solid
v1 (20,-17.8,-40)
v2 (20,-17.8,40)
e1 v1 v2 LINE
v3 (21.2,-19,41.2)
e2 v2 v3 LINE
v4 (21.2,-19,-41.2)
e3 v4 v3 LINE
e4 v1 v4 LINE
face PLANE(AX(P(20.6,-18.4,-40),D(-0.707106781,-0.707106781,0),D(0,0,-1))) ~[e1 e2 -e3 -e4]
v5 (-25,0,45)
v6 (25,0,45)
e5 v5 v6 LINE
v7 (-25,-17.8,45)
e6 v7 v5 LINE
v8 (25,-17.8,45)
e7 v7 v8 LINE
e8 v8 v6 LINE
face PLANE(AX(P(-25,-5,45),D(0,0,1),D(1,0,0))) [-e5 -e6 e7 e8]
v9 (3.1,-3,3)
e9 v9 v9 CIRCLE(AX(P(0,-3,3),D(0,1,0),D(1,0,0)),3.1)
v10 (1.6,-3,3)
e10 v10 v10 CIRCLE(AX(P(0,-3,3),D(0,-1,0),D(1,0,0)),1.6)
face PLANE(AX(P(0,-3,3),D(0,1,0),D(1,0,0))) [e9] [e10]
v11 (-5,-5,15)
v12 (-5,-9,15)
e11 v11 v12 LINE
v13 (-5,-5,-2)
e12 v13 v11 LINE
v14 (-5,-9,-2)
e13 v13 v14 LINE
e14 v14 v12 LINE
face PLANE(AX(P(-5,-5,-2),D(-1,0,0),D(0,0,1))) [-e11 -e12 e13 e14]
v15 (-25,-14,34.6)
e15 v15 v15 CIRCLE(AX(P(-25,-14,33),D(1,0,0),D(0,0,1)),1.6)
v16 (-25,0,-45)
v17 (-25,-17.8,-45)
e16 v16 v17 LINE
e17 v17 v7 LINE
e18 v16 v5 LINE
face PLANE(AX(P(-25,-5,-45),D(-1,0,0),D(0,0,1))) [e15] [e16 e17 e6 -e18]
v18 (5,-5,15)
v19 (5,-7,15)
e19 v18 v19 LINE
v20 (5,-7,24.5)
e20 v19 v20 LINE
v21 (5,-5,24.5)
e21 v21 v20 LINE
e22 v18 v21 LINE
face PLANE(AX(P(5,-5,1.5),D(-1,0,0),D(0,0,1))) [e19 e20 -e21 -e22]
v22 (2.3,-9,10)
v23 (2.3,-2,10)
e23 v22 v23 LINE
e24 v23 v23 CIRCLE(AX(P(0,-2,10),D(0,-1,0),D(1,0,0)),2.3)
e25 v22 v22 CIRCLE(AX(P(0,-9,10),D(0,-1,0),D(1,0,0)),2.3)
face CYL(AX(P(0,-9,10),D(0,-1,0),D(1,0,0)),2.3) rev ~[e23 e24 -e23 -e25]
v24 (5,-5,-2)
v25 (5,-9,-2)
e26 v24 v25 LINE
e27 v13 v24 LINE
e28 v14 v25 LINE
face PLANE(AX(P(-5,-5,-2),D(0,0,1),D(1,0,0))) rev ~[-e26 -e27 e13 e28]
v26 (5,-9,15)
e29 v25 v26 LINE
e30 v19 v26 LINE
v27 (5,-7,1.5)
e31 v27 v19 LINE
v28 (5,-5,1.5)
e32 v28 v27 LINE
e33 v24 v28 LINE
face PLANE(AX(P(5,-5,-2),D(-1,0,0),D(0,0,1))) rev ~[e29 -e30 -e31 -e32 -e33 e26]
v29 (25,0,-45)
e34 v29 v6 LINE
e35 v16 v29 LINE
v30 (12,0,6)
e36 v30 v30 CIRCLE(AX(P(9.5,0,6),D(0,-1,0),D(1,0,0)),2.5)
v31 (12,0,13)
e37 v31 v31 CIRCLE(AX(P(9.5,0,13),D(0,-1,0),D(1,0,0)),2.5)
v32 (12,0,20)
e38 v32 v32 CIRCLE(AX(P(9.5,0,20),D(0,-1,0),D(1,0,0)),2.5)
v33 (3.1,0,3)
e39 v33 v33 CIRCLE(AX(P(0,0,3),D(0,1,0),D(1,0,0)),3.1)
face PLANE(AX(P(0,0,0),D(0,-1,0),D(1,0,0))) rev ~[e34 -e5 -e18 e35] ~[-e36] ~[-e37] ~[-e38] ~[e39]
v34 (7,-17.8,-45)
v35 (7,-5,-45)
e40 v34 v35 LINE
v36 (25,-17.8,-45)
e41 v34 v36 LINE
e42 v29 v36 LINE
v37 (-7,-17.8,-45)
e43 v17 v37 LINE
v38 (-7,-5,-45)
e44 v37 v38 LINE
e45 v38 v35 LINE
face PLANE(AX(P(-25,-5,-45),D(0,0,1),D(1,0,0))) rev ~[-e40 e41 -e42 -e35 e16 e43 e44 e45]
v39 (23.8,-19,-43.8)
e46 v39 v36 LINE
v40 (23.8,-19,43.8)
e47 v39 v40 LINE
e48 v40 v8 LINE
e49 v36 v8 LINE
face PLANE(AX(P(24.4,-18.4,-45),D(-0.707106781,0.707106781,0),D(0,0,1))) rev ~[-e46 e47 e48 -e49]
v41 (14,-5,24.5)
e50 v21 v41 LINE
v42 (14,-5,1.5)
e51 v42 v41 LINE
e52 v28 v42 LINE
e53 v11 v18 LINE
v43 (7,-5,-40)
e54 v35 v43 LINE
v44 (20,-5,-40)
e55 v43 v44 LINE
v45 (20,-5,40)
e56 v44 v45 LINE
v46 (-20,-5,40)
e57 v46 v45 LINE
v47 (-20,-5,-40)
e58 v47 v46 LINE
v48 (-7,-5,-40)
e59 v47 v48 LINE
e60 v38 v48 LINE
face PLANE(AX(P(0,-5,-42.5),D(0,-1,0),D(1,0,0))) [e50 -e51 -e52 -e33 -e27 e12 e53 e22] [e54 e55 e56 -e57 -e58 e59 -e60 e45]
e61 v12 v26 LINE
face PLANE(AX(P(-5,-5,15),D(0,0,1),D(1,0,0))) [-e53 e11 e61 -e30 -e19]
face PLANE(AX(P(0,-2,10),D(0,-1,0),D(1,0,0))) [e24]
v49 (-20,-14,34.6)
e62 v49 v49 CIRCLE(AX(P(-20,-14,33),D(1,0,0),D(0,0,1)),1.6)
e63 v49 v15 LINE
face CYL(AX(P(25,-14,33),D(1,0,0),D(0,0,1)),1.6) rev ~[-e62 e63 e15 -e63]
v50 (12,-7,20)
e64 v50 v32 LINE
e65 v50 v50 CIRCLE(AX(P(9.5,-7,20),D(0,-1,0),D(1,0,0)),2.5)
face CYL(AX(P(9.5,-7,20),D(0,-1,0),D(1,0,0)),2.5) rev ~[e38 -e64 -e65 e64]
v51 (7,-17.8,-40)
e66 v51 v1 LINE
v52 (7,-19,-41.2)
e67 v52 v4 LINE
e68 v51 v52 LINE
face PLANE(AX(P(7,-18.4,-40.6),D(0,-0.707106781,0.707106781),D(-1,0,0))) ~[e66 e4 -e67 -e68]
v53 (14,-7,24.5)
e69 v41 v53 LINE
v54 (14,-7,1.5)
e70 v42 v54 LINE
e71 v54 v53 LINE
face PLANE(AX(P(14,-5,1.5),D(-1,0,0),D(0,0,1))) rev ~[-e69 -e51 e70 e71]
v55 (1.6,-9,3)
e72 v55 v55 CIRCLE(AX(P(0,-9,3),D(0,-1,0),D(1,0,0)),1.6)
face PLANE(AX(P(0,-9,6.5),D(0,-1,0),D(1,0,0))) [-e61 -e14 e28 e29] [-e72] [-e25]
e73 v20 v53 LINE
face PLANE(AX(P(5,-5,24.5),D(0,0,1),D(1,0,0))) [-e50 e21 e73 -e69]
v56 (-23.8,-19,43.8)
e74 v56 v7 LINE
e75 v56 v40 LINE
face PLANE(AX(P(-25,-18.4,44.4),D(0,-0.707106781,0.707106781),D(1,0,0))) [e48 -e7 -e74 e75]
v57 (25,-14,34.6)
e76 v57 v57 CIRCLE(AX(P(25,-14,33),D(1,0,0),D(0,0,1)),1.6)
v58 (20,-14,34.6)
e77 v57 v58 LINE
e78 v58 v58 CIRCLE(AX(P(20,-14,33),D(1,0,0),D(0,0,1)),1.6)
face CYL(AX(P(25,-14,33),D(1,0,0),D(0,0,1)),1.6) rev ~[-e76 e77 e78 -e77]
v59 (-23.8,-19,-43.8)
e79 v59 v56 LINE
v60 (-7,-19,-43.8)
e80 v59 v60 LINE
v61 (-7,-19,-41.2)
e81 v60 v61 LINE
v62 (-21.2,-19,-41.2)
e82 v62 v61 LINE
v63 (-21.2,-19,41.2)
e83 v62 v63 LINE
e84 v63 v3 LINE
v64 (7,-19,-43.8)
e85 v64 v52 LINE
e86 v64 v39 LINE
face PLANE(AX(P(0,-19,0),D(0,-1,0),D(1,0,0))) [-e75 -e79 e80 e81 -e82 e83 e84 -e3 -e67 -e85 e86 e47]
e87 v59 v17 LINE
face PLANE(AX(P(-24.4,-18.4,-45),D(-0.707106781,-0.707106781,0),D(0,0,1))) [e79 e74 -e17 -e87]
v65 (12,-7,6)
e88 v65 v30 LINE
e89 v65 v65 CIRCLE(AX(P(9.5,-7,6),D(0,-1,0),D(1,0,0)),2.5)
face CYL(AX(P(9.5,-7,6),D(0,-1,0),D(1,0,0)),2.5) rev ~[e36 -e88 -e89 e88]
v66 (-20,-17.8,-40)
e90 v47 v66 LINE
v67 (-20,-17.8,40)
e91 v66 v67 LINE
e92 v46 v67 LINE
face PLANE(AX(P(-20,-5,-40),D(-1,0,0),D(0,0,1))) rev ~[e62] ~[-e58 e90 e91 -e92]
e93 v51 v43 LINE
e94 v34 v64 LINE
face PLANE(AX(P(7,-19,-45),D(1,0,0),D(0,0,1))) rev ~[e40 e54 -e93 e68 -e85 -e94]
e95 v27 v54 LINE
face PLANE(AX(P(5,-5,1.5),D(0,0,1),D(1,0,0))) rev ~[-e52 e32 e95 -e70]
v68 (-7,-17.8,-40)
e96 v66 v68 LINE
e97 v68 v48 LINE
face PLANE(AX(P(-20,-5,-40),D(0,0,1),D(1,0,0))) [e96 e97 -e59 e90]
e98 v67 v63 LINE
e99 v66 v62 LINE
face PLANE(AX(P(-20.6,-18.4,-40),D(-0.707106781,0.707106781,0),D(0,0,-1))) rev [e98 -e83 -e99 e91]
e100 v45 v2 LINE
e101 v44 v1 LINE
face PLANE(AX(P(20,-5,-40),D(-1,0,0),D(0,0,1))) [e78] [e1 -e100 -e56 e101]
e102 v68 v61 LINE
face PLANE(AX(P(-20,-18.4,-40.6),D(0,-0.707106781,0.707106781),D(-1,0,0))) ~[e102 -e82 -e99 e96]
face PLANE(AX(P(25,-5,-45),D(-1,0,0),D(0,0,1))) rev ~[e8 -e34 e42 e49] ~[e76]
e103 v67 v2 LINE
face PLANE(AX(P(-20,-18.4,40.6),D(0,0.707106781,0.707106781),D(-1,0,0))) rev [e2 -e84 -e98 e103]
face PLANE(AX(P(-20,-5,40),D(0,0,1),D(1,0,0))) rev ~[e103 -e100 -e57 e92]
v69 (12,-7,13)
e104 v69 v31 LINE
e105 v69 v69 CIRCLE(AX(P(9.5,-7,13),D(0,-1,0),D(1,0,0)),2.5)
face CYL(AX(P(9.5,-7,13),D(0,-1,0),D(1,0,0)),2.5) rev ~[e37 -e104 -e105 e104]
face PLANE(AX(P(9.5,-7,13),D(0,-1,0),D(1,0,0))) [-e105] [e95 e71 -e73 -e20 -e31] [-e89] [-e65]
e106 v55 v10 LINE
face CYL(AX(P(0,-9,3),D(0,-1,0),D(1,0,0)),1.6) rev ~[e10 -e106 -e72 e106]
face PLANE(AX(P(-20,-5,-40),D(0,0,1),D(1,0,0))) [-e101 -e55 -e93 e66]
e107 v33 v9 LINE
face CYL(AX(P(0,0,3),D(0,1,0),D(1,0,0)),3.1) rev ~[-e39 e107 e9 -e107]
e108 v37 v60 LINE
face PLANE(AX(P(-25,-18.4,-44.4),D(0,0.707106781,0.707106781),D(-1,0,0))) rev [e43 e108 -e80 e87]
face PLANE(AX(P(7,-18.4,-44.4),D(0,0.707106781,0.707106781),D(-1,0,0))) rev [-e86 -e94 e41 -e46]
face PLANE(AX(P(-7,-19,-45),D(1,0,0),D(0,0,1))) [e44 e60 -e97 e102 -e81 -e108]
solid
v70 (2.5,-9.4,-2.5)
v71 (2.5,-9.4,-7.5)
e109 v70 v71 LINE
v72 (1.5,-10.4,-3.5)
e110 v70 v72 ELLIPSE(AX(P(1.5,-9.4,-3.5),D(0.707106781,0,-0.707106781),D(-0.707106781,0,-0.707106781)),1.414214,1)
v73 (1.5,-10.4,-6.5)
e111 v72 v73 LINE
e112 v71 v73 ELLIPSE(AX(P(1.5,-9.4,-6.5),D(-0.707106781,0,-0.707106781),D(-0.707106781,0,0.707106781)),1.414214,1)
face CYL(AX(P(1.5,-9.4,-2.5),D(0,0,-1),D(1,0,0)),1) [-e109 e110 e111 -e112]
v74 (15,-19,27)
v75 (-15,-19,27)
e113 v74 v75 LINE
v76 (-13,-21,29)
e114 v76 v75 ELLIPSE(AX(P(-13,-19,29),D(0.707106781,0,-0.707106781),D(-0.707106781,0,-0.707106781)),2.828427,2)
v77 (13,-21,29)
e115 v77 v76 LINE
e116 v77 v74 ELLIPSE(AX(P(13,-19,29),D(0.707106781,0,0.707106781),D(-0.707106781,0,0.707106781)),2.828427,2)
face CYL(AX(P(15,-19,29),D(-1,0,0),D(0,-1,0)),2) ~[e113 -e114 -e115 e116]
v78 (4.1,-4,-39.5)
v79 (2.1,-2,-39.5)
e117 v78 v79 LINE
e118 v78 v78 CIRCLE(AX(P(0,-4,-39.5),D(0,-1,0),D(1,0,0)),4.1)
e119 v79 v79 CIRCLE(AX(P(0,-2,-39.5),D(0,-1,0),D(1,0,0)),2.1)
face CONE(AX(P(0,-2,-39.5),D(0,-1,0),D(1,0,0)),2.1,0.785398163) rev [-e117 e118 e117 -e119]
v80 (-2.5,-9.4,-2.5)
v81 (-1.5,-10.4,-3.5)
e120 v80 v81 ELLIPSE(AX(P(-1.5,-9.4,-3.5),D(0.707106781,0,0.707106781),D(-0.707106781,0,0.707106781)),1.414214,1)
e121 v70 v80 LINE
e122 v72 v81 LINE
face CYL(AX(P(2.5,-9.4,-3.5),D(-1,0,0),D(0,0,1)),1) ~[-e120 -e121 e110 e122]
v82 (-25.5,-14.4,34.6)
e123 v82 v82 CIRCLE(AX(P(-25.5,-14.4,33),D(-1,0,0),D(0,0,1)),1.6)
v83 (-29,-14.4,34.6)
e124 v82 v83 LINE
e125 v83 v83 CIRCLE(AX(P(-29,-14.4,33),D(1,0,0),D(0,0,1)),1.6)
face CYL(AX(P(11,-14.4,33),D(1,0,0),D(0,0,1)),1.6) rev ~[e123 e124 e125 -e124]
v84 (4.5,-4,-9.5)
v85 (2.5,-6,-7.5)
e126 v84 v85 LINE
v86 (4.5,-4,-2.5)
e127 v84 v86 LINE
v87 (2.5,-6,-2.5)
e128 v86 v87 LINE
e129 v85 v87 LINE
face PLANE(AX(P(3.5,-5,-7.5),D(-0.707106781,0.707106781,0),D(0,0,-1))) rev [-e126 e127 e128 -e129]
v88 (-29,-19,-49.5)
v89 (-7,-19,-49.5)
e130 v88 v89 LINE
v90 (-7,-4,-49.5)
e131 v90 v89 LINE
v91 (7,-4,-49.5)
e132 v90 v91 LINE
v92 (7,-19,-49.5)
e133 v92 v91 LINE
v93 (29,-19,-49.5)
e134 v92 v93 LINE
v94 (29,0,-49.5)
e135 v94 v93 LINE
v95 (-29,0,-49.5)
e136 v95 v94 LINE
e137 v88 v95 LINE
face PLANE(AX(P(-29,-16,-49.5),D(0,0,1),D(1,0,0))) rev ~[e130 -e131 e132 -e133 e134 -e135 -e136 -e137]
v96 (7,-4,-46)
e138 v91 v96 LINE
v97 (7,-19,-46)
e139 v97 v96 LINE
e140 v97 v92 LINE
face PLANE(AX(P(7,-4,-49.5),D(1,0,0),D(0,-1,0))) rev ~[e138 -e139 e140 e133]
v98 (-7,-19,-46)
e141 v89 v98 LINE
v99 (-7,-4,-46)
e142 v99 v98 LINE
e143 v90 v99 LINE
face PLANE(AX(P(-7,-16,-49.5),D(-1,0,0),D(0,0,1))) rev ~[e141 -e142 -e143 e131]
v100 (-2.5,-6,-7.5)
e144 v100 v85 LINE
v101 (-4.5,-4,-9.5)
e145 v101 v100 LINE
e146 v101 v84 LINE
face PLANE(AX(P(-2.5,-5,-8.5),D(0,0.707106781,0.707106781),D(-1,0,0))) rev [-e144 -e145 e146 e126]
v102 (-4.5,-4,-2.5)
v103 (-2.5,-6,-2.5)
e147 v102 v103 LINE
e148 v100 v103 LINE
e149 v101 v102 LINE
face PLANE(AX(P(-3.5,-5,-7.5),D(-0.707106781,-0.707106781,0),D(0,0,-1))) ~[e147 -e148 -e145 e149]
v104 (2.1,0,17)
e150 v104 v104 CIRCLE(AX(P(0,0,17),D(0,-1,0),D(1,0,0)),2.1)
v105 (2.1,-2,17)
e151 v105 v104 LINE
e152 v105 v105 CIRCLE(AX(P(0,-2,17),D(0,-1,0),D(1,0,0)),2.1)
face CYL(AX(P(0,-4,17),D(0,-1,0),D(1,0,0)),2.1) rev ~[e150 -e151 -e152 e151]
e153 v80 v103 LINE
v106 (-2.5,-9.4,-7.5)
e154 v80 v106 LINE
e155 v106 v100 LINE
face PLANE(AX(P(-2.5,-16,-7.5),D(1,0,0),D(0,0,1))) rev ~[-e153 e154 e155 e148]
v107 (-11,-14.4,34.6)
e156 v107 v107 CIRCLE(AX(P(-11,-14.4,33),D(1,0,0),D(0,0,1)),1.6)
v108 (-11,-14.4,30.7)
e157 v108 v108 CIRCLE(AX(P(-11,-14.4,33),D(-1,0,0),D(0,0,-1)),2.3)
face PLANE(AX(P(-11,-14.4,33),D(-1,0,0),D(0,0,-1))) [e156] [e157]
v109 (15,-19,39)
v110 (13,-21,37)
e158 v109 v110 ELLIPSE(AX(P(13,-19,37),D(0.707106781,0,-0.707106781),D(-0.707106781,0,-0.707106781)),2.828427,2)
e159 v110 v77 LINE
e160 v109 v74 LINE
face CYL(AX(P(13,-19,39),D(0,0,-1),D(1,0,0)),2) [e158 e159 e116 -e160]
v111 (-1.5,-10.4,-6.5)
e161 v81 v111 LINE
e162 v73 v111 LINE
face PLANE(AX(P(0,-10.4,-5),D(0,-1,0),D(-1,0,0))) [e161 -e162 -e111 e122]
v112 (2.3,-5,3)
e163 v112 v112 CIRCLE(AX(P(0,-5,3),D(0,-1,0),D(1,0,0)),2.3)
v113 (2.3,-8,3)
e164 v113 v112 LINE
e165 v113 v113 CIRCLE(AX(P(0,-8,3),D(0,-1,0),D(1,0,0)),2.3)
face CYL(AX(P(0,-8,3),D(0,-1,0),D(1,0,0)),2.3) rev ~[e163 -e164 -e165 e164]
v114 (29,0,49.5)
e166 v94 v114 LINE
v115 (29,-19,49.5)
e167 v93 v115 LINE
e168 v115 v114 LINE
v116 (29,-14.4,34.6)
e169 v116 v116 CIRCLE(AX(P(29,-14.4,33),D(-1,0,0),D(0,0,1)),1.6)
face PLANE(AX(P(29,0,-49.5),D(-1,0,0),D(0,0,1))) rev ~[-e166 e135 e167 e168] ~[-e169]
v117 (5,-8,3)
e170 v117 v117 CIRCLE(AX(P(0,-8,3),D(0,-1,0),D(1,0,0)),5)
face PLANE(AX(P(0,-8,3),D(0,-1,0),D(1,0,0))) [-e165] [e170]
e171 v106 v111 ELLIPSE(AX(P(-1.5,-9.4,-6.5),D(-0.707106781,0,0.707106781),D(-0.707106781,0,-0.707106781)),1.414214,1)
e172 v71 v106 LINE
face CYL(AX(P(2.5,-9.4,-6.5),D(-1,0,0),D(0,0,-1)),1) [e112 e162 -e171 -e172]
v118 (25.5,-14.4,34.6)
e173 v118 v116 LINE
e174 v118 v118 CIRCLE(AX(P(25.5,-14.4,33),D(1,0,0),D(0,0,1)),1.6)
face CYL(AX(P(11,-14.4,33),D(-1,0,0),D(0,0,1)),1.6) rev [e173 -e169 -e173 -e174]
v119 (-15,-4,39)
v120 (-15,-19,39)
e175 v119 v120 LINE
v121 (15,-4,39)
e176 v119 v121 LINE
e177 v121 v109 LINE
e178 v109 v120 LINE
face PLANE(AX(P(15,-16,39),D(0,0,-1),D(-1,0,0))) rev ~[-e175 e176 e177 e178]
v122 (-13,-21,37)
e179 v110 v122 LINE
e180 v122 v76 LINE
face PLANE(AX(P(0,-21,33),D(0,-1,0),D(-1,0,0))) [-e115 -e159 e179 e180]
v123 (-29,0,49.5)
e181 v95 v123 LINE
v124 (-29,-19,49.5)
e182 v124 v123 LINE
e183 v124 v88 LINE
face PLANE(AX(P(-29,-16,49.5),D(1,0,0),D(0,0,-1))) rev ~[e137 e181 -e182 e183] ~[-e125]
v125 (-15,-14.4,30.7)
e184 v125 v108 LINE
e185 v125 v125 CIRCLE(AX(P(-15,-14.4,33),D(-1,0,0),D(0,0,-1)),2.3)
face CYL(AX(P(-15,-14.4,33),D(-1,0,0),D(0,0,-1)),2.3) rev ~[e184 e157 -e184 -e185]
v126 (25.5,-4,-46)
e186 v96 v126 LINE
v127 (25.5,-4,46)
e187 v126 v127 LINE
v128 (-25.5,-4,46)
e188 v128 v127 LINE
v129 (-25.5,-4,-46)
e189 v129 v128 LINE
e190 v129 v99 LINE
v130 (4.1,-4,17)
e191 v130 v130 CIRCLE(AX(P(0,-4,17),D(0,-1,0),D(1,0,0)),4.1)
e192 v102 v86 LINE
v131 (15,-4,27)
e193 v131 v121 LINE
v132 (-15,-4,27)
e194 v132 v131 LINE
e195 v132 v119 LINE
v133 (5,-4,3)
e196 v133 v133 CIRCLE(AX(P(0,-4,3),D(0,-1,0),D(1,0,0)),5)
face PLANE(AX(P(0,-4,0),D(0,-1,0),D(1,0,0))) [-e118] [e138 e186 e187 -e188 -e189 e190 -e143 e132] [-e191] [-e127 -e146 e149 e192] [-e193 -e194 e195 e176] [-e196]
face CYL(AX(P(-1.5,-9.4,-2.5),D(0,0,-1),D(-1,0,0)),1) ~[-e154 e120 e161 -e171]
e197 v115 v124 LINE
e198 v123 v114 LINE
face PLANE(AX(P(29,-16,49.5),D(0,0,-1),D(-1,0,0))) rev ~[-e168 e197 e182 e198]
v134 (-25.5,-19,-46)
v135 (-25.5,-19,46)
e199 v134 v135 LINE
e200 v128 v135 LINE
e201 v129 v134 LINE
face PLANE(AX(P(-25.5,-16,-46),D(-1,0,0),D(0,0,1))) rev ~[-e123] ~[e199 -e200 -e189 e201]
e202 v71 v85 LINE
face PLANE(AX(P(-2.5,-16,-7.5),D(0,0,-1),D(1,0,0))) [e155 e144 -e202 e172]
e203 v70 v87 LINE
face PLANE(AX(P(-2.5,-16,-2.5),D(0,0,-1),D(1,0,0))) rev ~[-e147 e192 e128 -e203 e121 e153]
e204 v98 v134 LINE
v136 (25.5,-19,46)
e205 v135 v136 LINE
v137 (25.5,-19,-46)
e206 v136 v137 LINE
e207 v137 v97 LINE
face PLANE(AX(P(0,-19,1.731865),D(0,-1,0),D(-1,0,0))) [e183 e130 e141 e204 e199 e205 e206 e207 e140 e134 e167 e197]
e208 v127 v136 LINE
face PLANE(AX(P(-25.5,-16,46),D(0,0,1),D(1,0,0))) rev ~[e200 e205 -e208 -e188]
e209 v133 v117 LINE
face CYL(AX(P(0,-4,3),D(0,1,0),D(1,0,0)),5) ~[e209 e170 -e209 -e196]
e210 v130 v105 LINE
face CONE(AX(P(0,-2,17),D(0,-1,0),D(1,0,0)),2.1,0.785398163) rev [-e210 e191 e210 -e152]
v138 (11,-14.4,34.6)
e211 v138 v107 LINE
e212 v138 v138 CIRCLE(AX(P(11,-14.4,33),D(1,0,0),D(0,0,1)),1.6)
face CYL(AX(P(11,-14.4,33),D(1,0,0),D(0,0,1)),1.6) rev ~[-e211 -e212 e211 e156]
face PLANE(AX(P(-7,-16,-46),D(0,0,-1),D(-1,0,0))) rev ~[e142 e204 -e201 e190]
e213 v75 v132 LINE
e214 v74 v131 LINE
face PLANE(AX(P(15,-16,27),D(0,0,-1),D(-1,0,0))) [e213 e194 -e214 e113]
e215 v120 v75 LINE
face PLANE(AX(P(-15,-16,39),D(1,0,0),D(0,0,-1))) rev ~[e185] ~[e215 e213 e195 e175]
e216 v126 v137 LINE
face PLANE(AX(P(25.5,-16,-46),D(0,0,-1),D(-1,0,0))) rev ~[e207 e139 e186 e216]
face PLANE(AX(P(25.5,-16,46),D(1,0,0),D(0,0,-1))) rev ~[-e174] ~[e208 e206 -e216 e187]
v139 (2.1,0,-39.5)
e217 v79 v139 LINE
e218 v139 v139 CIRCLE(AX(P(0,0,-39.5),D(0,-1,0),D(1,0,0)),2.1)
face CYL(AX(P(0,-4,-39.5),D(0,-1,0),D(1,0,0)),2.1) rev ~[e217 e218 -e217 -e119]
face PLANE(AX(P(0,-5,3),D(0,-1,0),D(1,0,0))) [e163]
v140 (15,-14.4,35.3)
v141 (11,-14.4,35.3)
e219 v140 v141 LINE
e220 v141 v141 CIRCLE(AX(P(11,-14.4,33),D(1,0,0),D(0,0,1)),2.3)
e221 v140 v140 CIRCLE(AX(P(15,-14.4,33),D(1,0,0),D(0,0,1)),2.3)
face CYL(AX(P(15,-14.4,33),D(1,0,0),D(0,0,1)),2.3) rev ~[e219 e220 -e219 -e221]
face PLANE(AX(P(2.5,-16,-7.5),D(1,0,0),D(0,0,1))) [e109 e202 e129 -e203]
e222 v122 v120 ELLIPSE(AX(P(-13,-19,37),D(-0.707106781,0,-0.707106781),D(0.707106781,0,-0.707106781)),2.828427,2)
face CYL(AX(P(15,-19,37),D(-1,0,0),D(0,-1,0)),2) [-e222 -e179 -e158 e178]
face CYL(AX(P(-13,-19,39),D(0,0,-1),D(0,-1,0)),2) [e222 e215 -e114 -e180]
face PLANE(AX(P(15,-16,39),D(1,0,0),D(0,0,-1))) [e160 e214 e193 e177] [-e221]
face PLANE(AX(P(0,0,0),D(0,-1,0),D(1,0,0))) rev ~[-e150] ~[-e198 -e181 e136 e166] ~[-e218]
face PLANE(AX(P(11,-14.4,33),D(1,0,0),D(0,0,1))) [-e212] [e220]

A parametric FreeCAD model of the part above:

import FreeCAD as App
import Part
import Sketcher

V = App.Vector


def edges_at(feature, points):
    """Names of the edges that pass closest to the given points."""
    edges = feature.Shape.Edges
    near = lambda p: min(range(len(edges)), key=lambda i: edges[i].distToShape(Part.Vertex(*p))[0])
    return sorted({f"Edge{near(p) + 1}" for p in points})

doc = App.newDocument("Part")
body = doc.addObject("PartDesign::Body", "Body")

# Sketch on XZ plane
sketch1 = body.newObject("Sketcher::SketchObject", "Sketch")
sketch1.AttachmentSupport = (doc.getObject("XZ_Plane"), [""])
sketch1.MapMode = "FlatFace"
sketch1.addGeometry(Part.LineSegment(V(-29, 50, 0), V(-29, -50, 0)), False)
sketch1.addGeometry(Part.LineSegment(V(-29, -50, 0), V(29, -50, 0)), False)
sketch1.addGeometry(Part.LineSegment(V(29, -50, 0), V(29, 50, 0)), False)
sketch1.addGeometry(Part.LineSegment(V(29, 50, 0), V(-29, 50, 0)), False)
sketch1.addConstraint(Sketcher.Constraint("Coincident", 0, 2, 1, 1))
sketch1.addConstraint(Sketcher.Constraint("Coincident", 1, 2, 2, 1))
sketch1.addConstraint(Sketcher.Constraint("Coincident", 2, 2, 3, 1))
sketch1.addConstraint(Sketcher.Constraint("Coincident", 3, 2, 0, 1))
sketch1.addConstraint(Sketcher.Constraint("Vertical", 0))
sketch1.addConstraint(Sketcher.Constraint("Horizontal", 1))
sketch1.addConstraint(Sketcher.Constraint("Vertical", 2))
sketch1.addConstraint(Sketcher.Constraint("Horizontal", 3))
sketch1.addConstraint(Sketcher.Constraint("Symmetric", 0, 2, 2, 2, -1, 1))
sketch1.addConstraint(Sketcher.Constraint("DistanceX", 1, 1, 1, 2, 58.0))
sketch1.addConstraint(Sketcher.Constraint("DistanceY", 0, 2, 0, 1, 99.0))
pad1 = body.newObject("PartDesign::Pad", "Pad")
pad1.Profile = sketch1
pad1.Length = 16

# Sketch on XZ plane
sketch2 = body.newObject("Sketcher::SketchObject", "Sketch001")
sketch2.AttachmentSupport = (doc.getObject("XZ_Plane"), [""])
sketch2.MapMode = "FlatFace"
sketch2.AttachmentOffset = App.Placement(V(0, 0, 16), App.Rotation())
sketch2.addGeometry(Part.LineSegment(V(-26, 46, 0), V(-26, -46, 0)), False)
sketch2.addGeometry(Part.LineSegment(V(-26, -46, 0), V(26, -46, 0)), False)
sketch2.addGeometry(Part.LineSegment(V(26, -46, 0), V(26, 46, 0)), False)
sketch2.addGeometry(Part.LineSegment(V(26, 46, 0), V(-26, 46, 0)), False)
sketch2.addGeometry(Part.LineSegment(V(2, -8, 0), V(-2, -8, 0)), False)
sketch2.addGeometry(Part.LineSegment(V(-2, -8, 0), V(-2, -2, 0)), False)
sketch2.addGeometry(Part.LineSegment(V(-2, -2, 0), V(2, -2, 0)), False)
sketch2.addGeometry(Part.LineSegment(V(2, -2, 0), V(2, -8, 0)), False)
sketch2.addGeometry(Part.LineSegment(V(15, 27, 0), V(-15, 27, 0)), False)
sketch2.addGeometry(Part.LineSegment(V(-15, 27, 0), V(-15, 39, 0)), False)
sketch2.addGeometry(Part.LineSegment(V(-15, 39, 0), V(15, 39, 0)), False)
sketch2.addGeometry(Part.LineSegment(V(15, 39, 0), V(15, 27, 0)), False)
sketch2.addConstraint(Sketcher.Constraint("Coincident", 0, 2, 1, 1))
sketch2.addConstraint(Sketcher.Constraint("Coincident", 1, 2, 2, 1))
sketch2.addConstraint(Sketcher.Constraint("Coincident", 2, 2, 3, 1))
sketch2.addConstraint(Sketcher.Constraint("Coincident", 3, 2, 0, 1))
sketch2.addConstraint(Sketcher.Constraint("Coincident", 4, 2, 5, 1))
sketch2.addConstraint(Sketcher.Constraint("Coincident", 5, 2, 6, 1))
sketch2.addConstraint(Sketcher.Constraint("Coincident", 6, 2, 7, 1))
sketch2.addConstraint(Sketcher.Constraint("Coincident", 7, 2, 4, 1))
sketch2.addConstraint(Sketcher.Constraint("Coincident", 8, 2, 9, 1))
sketch2.addConstraint(Sketcher.Constraint("Coincident", 9, 2, 10, 1))
sketch2.addConstraint(Sketcher.Constraint("Coincident", 10, 2, 11, 1))
sketch2.addConstraint(Sketcher.Constraint("Coincident", 11, 2, 8, 1))
sketch2.addConstraint(Sketcher.Constraint("Vertical", 0))
sketch2.addConstraint(Sketcher.Constraint("Horizontal", 1))
sketch2.addConstraint(Sketcher.Constraint("Vertical", 2))
sketch2.addConstraint(Sketcher.Constraint("Horizontal", 3))
sketch2.addConstraint(Sketcher.Constraint("Horizontal", 4))
sketch2.addConstraint(Sketcher.Constraint("Vertical", 5))
sketch2.addConstraint(Sketcher.Constraint("Horizontal", 6))
sketch2.addConstraint(Sketcher.Constraint("Vertical", 7))
sketch2.addConstraint(Sketcher.Constraint("Horizontal", 8))
sketch2.addConstraint(Sketcher.Constraint("Vertical", 9))
sketch2.addConstraint(Sketcher.Constraint("Horizontal", 10))
sketch2.addConstraint(Sketcher.Constraint("Vertical", 11))
sketch2.addConstraint(Sketcher.Constraint("Symmetric", 0, 2, 2, 2, -1, 1))
sketch2.addConstraint(Sketcher.Constraint("Equal", 6, 5))
sketch2.addConstraint(Sketcher.Constraint("DistanceX", 1, 1, 1, 2, 51.0))
sketch2.addConstraint(Sketcher.Constraint("DistanceX", 4, 2, 4, 1, 5.0))
sketch2.addConstraint(Sketcher.Constraint("DistanceX", 8, 2, 8, 1, 30.0))
sketch2.addConstraint(Sketcher.Constraint("DistanceY", 0, 2, 0, 1, 92.0))
sketch2.addConstraint(Sketcher.Constraint("DistanceY", 9, 1, 9, 2, 12.0))
sketch2.addConstraint(Sketcher.Constraint("DistanceX", 8, 2, -1, 1, 15.0))
sketch2.addConstraint(Sketcher.Constraint("DistanceY", -1, 1, 8, 2, 27.0))
sketch2.addConstraint(Sketcher.Constraint("DistanceX", 0, 2, 4, 2, 23.0))
sketch2.addConstraint(Sketcher.Constraint("DistanceY", 4, 2, -1, 1, 7.5))
pocket1 = body.newObject("PartDesign::Pocket", "Pocket")
pocket1.Profile = sketch2
pocket1.Length = 12

# Sketch on XZ plane
sketch3 = body.newObject("Sketcher::SketchObject", "Sketch002")
sketch3.AttachmentSupport = (doc.getObject("XZ_Plane"), [""])
sketch3.MapMode = "FlatFace"
sketch3.AttachmentOffset = App.Placement(V(0, 0, 16), App.Rotation())
sketch3.addGeometry(Part.LineSegment(V(2, -8, 0), V(2, -2, 0)), False)
sketch3.addGeometry(Part.LineSegment(V(2, -2, 0), V(-2, -2, 0)), False)
sketch3.addGeometry(Part.LineSegment(V(-2, -2, 0), V(-2, -8, 0)), False)
sketch3.addGeometry(Part.LineSegment(V(-2, -8, 0), V(2, -8, 0)), False)
sketch3.addConstraint(Sketcher.Constraint("Coincident", 0, 2, 1, 1))
sketch3.addConstraint(Sketcher.Constraint("Coincident", 1, 2, 2, 1))
sketch3.addConstraint(Sketcher.Constraint("Coincident", 2, 2, 3, 1))
sketch3.addConstraint(Sketcher.Constraint("Coincident", 3, 2, 0, 1))
sketch3.addConstraint(Sketcher.Constraint("Vertical", 0))
sketch3.addConstraint(Sketcher.Constraint("Horizontal", 1))
sketch3.addConstraint(Sketcher.Constraint("Vertical", 2))
sketch3.addConstraint(Sketcher.Constraint("Horizontal", 3))
sketch3.addConstraint(Sketcher.Constraint("Equal", 3, 0))
sketch3.addConstraint(Sketcher.Constraint("DistanceX", 1, 2, 1, 1, 5.0))
sketch3.addConstraint(Sketcher.Constraint("DistanceX", -1, 1, 0, 2, 2.5))
sketch3.addConstraint(Sketcher.Constraint("DistanceY", 0, 2, -1, 1, 2.5))
pocket2 = body.newObject("PartDesign::Pocket", "Pocket001")
pocket2.Profile = sketch3
pocket2.Length = 5.6

# Sketch on XZ plane
sketch4 = body.newObject("Sketcher::SketchObject", "Sketch003")
sketch4.AttachmentSupport = (doc.getObject("XZ_Plane"), [""])
sketch4.MapMode = "FlatFace"
sketch4.AttachmentOffset = App.Placement(V(0, 0, 16), App.Rotation())
sketch4.addGeometry(Part.LineSegment(V(15, 27, 0), V(15, 39, 0)), False)
sketch4.addGeometry(Part.LineSegment(V(15, 39, 0), V(-15, 39, 0)), False)
sketch4.addGeometry(Part.LineSegment(V(-15, 39, 0), V(-15, 27, 0)), False)
sketch4.addGeometry(Part.LineSegment(V(-15, 27, 0), V(15, 27, 0)), False)
sketch4.addConstraint(Sketcher.Constraint("Coincident", 0, 2, 1, 1))
sketch4.addConstraint(Sketcher.Constraint("Coincident", 1, 2, 2, 1))
sketch4.addConstraint(Sketcher.Constraint("Coincident", 2, 2, 3, 1))
sketch4.addConstraint(Sketcher.Constraint("Coincident", 3, 2, 0, 1))
sketch4.addConstraint(Sketcher.Constraint("Vertical", 0))
sketch4.addConstraint(Sketcher.Constraint("Horizontal", 1))
sketch4.addConstraint(Sketcher.Constraint("Vertical", 2))
sketch4.addConstraint(Sketcher.Constraint("Horizontal", 3))
sketch4.addConstraint(Sketcher.Constraint("DistanceX", 1, 2, 1, 1, 30.0))
sketch4.addConstraint(Sketcher.Constraint("DistanceY", 0, 1, 0, 2, 12.0))
sketch4.addConstraint(Sketcher.Constraint("DistanceX", -1, 1, 0, 2, 15.0))
sketch4.addConstraint(Sketcher.Constraint("DistanceY", -1, 1, 0, 2, 39.0))
pad2 = body.newObject("PartDesign::Pad", "Pad001")
pad2.Profile = sketch4
pad2.Length = 5

# Sketch on YZ plane
sketch5 = body.newObject("Sketcher::SketchObject", "Sketch004")
sketch5.AttachmentSupport = (doc.getObject("YZ_Plane"), [""])
sketch5.MapMode = "FlatFace"
sketch5.AttachmentOffset = App.Placement(V(0, 0, 15), App.Rotation())
sketch5.addGeometry(Part.Circle(V(-14.4, 33, 0), V(0, 0, 1), 2.3), False)
sketch5.addConstraint(Sketcher.Constraint("Diameter", 0, 4.6))
sketch5.addConstraint(Sketcher.Constraint("DistanceY", -1, 1, 0, 3, 33.0))
sketch5.addConstraint(Sketcher.Constraint("DistanceX", 0, 3, -1, 1, 14.4))
pocket3 = body.newObject("PartDesign::Pocket", "Pocket002")
pocket3.Profile = sketch5
pocket3.Length = 4

# Sketch on YZ plane
sketch6 = body.newObject("Sketcher::SketchObject", "Sketch005")
sketch6.AttachmentSupport = (doc.getObject("YZ_Plane"), [""])
sketch6.MapMode = "FlatFace"
sketch6.AttachmentOffset = App.Placement(V(0, 0, -15), App.Rotation())
sketch6.addGeometry(Part.Circle(V(-14.4, 33, 0), V(0, 0, 1), 2.3), False)
sketch6.addConstraint(Sketcher.Constraint("Diameter", 0, 4.6))
sketch6.addConstraint(Sketcher.Constraint("DistanceY", -1, 1, 0, 3, 33.0))
sketch6.addConstraint(Sketcher.Constraint("DistanceX", 0, 3, -1, 1, 14.4))
pocket4 = body.newObject("PartDesign::Pocket", "Pocket003")
pocket4.Profile = sketch6
pocket4.Length = 4
pocket4.Reversed = True

# Sketch on YZ plane
sketch7 = body.newObject("Sketcher::SketchObject", "Sketch006")
sketch7.AttachmentSupport = (doc.getObject("YZ_Plane"), [""])
sketch7.MapMode = "FlatFace"
sketch7.AttachmentOffset = App.Placement(V(0, 0, 11), App.Rotation())
sketch7.addGeometry(Part.Circle(V(-14.4, 33, 0), V(0, 0, 1), 1.6), False)
sketch7.addConstraint(Sketcher.Constraint("Diameter", 0, 3.2))
sketch7.addConstraint(Sketcher.Constraint("DistanceY", -1, 1, 0, 3, 33.0))
sketch7.addConstraint(Sketcher.Constraint("DistanceX", 0, 3, -1, 1, 14.4))
pocket5 = body.newObject("PartDesign::Pocket", "Pocket004")
pocket5.Profile = sketch7
pocket5.Type = "ThroughAll"
pocket5.Midplane = True
doc.recompute()

fillet = body.newObject("PartDesign::Fillet", "Fillet")
fillet.Base = (pocket5, edges_at(pocket5, [
    (-15, -21, 33),
    (0, -21, 27),
    (15, -21, 33),
    (0, -21, 39),
]))
fillet.Radius = 2
doc.recompute()

fillet2 = body.newObject("PartDesign::Fillet", "Fillet001")
fillet2.Base = (fillet, edges_at(fillet, [
    (0, -10.4, -7.5),
    (2.5, -10.4, -5),
    (0, -10.4, -2.5),
    (-2.5, -10.4, -5),
]))
fillet2.Radius = 1

# Sketch on XY plane
sketch8 = body.newObject("Sketcher::SketchObject", "Sketch007")
sketch8.AttachmentSupport = (doc.getObject("XY_Plane"), [""])
sketch8.MapMode = "FlatFace"
sketch8.AttachmentOffset = App.Placement(V(0, 0, -49.5), App.Rotation())
sketch8.addGeometry(Part.LineSegment(V(-7, -16, 0), V(-7, -4, 0)), False)
sketch8.addGeometry(Part.LineSegment(V(-7, -4, 0), V(7, -4, 0)), False)
sketch8.addGeometry(Part.LineSegment(V(7, -4, 0), V(7, -16, 0)), False)
sketch8.addGeometry(Part.LineSegment(V(7, -16, 0), V(-7, -16, 0)), False)
sketch8.addConstraint(Sketcher.Constraint("Coincident", 0, 2, 1, 1))
sketch8.addConstraint(Sketcher.Constraint("Coincident", 1, 2, 2, 1))
sketch8.addConstraint(Sketcher.Constraint("Coincident", 2, 2, 3, 1))
sketch8.addConstraint(Sketcher.Constraint("Coincident", 3, 2, 0, 1))
sketch8.addConstraint(Sketcher.Constraint("Vertical", 0))
sketch8.addConstraint(Sketcher.Constraint("Horizontal", 1))
sketch8.addConstraint(Sketcher.Constraint("Vertical", 2))
sketch8.addConstraint(Sketcher.Constraint("Horizontal", 3))
sketch8.addConstraint(Sketcher.Constraint("DistanceX", 1, 1, 1, 2, 14.0))
sketch8.addConstraint(Sketcher.Constraint("DistanceY", 0, 1, 0, 2, 12.0))
sketch8.addConstraint(Sketcher.Constraint("DistanceX", 0, 2, -1, 1, 7.0))
sketch8.addConstraint(Sketcher.Constraint("DistanceY", 0, 2, -1, 1, 4.0))
pocket6 = body.newObject("PartDesign::Pocket", "Pocket005")
pocket6.Profile = sketch8
pocket6.Length = 3.5
pocket6.Reversed = True

# Sketch on XZ plane
sketch9 = body.newObject("Sketcher::SketchObject", "Sketch008")
sketch9.AttachmentSupport = (doc.getObject("XZ_Plane"), [""])
sketch9.MapMode = "FlatFace"
sketch9.AttachmentOffset = App.Placement(V(0, 0, 4), App.Rotation())
sketch9.addGeometry(Part.Circle(V(0, 3, 0), V(0, 0, 1), 5), False)
sketch9.addConstraint(Sketcher.Constraint("PointOnObject", 0, 3, -2))
sketch9.addConstraint(Sketcher.Constraint("Diameter", 0, 10.0))
sketch9.addConstraint(Sketcher.Constraint("DistanceY", -1, 1, 0, 3, 3.0))
pad3 = body.newObject("PartDesign::Pad", "Pad002")
pad3.Profile = sketch9
pad3.Length = 4

# Sketch on XZ plane
sketch10 = body.newObject("Sketcher::SketchObject", "Sketch009")
sketch10.AttachmentSupport = (doc.getObject("XZ_Plane"), [""])
sketch10.MapMode = "FlatFace"
sketch10.AttachmentOffset = App.Placement(V(0, 0, 8), App.Rotation())
sketch10.addGeometry(Part.Circle(V(0, 3, 0), V(0, 0, 1), 2.3), False)
sketch10.addConstraint(Sketcher.Constraint("PointOnObject", 0, 3, -2))
sketch10.addConstraint(Sketcher.Constraint("Diameter", 0, 4.6))
sketch10.addConstraint(Sketcher.Constraint("DistanceY", -1, 1, 0, 3, 3.0))
pocket7 = body.newObject("PartDesign::Pocket", "Pocket006")
pocket7.Profile = sketch10
pocket7.Length = 3

# Sketch on XZ plane
sketch11 = body.newObject("Sketcher::SketchObject", "Sketch010")
sketch11.AttachmentSupport = (doc.getObject("XZ_Plane"), [""])
sketch11.MapMode = "FlatFace"
sketch11.AttachmentOffset = App.Placement(V(0, 0, 16), App.Rotation())
sketch11.addGeometry(Part.LineSegment(V(-29, -49.5, 0), V(-7, -49.5, 0)), False)
sketch11.addGeometry(Part.LineSegment(V(-7, -49.5, 0), V(-7, -46, 0)), False)
sketch11.addGeometry(Part.LineSegment(V(-7, -46, 0), V(-25.5, -46, 0)), False)
sketch11.addGeometry(Part.LineSegment(V(-25.5, -46, 0), V(-25.5, 46, 0)), False)
sketch11.addGeometry(Part.LineSegment(V(-25.5, 46, 0), V(25.5, 46, 0)), False)
sketch11.addGeometry(Part.LineSegment(V(25.5, 46, 0), V(25.5, -46, 0)), False)
sketch11.addGeometry(Part.LineSegment(V(25.5, -46, 0), V(7, -46, 0)), False)
sketch11.addGeometry(Part.LineSegment(V(7, -46, 0), V(7, -49.5, 0)), False)
sketch11.addGeometry(Part.LineSegment(V(7, -49.5, 0), V(29, -49.5, 0)), False)
sketch11.addGeometry(Part.LineSegment(V(29, -49.5, 0), V(29, 49.5, 0)), False)
sketch11.addGeometry(Part.LineSegment(V(29, 49.5, 0), V(-29, 49.5, 0)), False)
sketch11.addGeometry(Part.LineSegment(V(-29, 49.5, 0), V(-29, -49.5, 0)), False)
sketch11.addConstraint(Sketcher.Constraint("Coincident", 0, 2, 1, 1))
sketch11.addConstraint(Sketcher.Constraint("Coincident", 1, 2, 2, 1))
sketch11.addConstraint(Sketcher.Constraint("Coincident", 2, 2, 3, 1))
sketch11.addConstraint(Sketcher.Constraint("Coincident", 3, 2, 4, 1))
sketch11.addConstraint(Sketcher.Constraint("Coincident", 4, 2, 5, 1))
sketch11.addConstraint(Sketcher.Constraint("Coincident", 5, 2, 6, 1))
sketch11.addConstraint(Sketcher.Constraint("Coincident", 6, 2, 7, 1))
sketch11.addConstraint(Sketcher.Constraint("Coincident", 7, 2, 8, 1))
sketch11.addConstraint(Sketcher.Constraint("Coincident", 8, 2, 9, 1))
sketch11.addConstraint(Sketcher.Constraint("Coincident", 9, 2, 10, 1))
sketch11.addConstraint(Sketcher.Constraint("Coincident", 10, 2, 11, 1))
sketch11.addConstraint(Sketcher.Constraint("Coincident", 11, 2, 0, 1))
sketch11.addConstraint(Sketcher.Constraint("Horizontal", 0))
sketch11.addConstraint(Sketcher.Constraint("Vertical", 1))
sketch11.addConstraint(Sketcher.Constraint("Horizontal", 2))
sketch11.addConstraint(Sketcher.Constraint("Vertical", 3))
sketch11.addConstraint(Sketcher.Constraint("Horizontal", 4))
sketch11.addConstraint(Sketcher.Constraint("Vertical", 5))
sketch11.addConstraint(Sketcher.Constraint("Horizontal", 6))
sketch11.addConstraint(Sketcher.Constraint("Vertical", 7))
sketch11.addConstraint(Sketcher.Constraint("Horizontal", 8))
sketch11.addConstraint(Sketcher.Constraint("Vertical", 9))
sketch11.addConstraint(Sketcher.Constraint("Horizontal", 10))
sketch11.addConstraint(Sketcher.Constraint("Vertical", 11))
sketch11.addConstraint(Sketcher.Constraint("Symmetric", 2, 2, 4, 2, -1, 1))
sketch11.addConstraint(Sketcher.Constraint("Symmetric", 8, 2, 10, 2, -1, 1))
sketch11.addConstraint(Sketcher.Constraint("Symmetric", 1, 2, 6, 2, -2))
sketch11.addConstraint(Sketcher.Constraint("Horizontal", 0, 2, 7, 2))
sketch11.addConstraint(Sketcher.Constraint("DistanceX", 0, 1, 0, 2, 22.0))
sketch11.addConstraint(Sketcher.Constraint("DistanceX", 4, 1, 4, 2, 51.0))
sketch11.addConstraint(Sketcher.Constraint("DistanceX", 10, 2, 10, 1, 58.0))
sketch11.addConstraint(Sketcher.Constraint("DistanceY", 3, 1, 3, 2, 92.0))
sketch11.addConstraint(Sketcher.Constraint("DistanceY", 9, 1, 9, 2, 99.0))
pad4 = body.newObject("PartDesign::Pad", "Pad003")
pad4.Profile = sketch11
pad4.Length = 3

# Sketch on XZ plane
sketch12 = body.newObject("Sketcher::SketchObject", "Sketch011")
sketch12.AttachmentSupport = (doc.getObject("XZ_Plane"), [""])
sketch12.MapMode = "FlatFace"
sketch12.AttachmentOffset = App.Placement(V(0, 0, 4), App.Rotation())
sketch12.addGeometry(Part.Circle(V(0, -39.5, 0), V(0, 0, 1), 2.1), False)
sketch12.addGeometry(Part.Circle(V(0, 17, 0), V(0, 0, 1), 2.1), False)
sketch12.addConstraint(Sketcher.Constraint("Equal", 0, 1))
sketch12.addConstraint(Sketcher.Constraint("PointOnObject", 0, 3, -2))
sketch12.addConstraint(Sketcher.Constraint("PointOnObject", 1, 3, -2))
sketch12.addConstraint(Sketcher.Constraint("Diameter", 0, 4.2))
sketch12.addConstraint(Sketcher.Constraint("DistanceY", -1, 1, 1, 3, 17.0))
sketch12.addConstraint(Sketcher.Constraint("DistanceY", 0, 3, -1, 1, 39.5))
pocket8 = body.newObject("PartDesign::Pocket", "Pocket007")
pocket8.Profile = sketch12
pocket8.Type = "ThroughAll"
doc.recompute()

chamfer = body.newObject("PartDesign::Chamfer", "Chamfer")
chamfer.Base = (pocket8, edges_at(pocket8, [(-2.1, -4, 17), (-2.1, -4, -39.5)]))
chamfer.Size = 2
doc.recompute()

chamfer2 = body.newObject("PartDesign::Chamfer", "Chamfer001")
chamfer2.Base = (chamfer, edges_at(chamfer, [(2.5, -4, -5), (0, -4, -7.5), (-2.5, -4, -5)]))
chamfer2.Size = 2
body2 = doc.addObject("PartDesign::Body", "Body001")

# Sketch on XZ plane
sketch13 = body2.newObject("Sketcher::SketchObject", "Sketch012")
sketch13.AttachmentSupport = (doc.getObject("XZ_Plane001"), [""])
sketch13.MapMode = "FlatFace"
sketch13.addGeometry(Part.LineSegment(V(-25, 45, 0), V(-25, -45, 0)), False)
sketch13.addGeometry(Part.LineSegment(V(-25, -45, 0), V(25, -45, 0)), False)
sketch13.addGeometry(Part.LineSegment(V(25, -45, 0), V(25, 45, 0)), False)
sketch13.addGeometry(Part.LineSegment(V(25, 45, 0), V(-25, 45, 0)), False)
sketch13.addConstraint(Sketcher.Constraint("Coincident", 0, 2, 1, 1))
sketch13.addConstraint(Sketcher.Constraint("Coincident", 1, 2, 2, 1))
sketch13.addConstraint(Sketcher.Constraint("Coincident", 2, 2, 3, 1))
sketch13.addConstraint(Sketcher.Constraint("Coincident", 3, 2, 0, 1))
sketch13.addConstraint(Sketcher.Constraint("Vertical", 0))
sketch13.addConstraint(Sketcher.Constraint("Horizontal", 1))
sketch13.addConstraint(Sketcher.Constraint("Vertical", 2))
sketch13.addConstraint(Sketcher.Constraint("Horizontal", 3))
sketch13.addConstraint(Sketcher.Constraint("Symmetric", 0, 2, 2, 2, -1, 1))
sketch13.addConstraint(Sketcher.Constraint("DistanceX", 1, 1, 1, 2, 50.0))
sketch13.addConstraint(Sketcher.Constraint("DistanceY", 0, 2, 0, 1, 90.0))
pad5 = body2.newObject("PartDesign::Pad", "Pad004")
pad5.Profile = sketch13
pad5.Length = 5

# Sketch on XZ plane
sketch14 = body2.newObject("Sketcher::SketchObject", "Sketch013")
sketch14.AttachmentSupport = (doc.getObject("XZ_Plane001"), [""])
sketch14.MapMode = "FlatFace"
sketch14.AttachmentOffset = App.Placement(V(0, 0, 5), App.Rotation())
sketch14.addGeometry(Part.LineSegment(V(-25, 45, 0), V(-25, -45, 0)), False)
sketch14.addGeometry(Part.LineSegment(V(-25, -45, 0), V(25, -45, 0)), False)
sketch14.addGeometry(Part.LineSegment(V(25, -45, 0), V(25, 45, 0)), False)
sketch14.addGeometry(Part.LineSegment(V(25, 45, 0), V(-25, 45, 0)), False)
sketch14.addGeometry(Part.LineSegment(V(20, -40, 0), V(-20, -40, 0)), False)
sketch14.addGeometry(Part.LineSegment(V(-20, -40, 0), V(-20, 40, 0)), False)
sketch14.addGeometry(Part.LineSegment(V(-20, 40, 0), V(20, 40, 0)), False)
sketch14.addGeometry(Part.LineSegment(V(20, 40, 0), V(20, -40, 0)), False)
sketch14.addConstraint(Sketcher.Constraint("Coincident", 0, 2, 1, 1))
sketch14.addConstraint(Sketcher.Constraint("Coincident", 1, 2, 2, 1))
sketch14.addConstraint(Sketcher.Constraint("Coincident", 2, 2, 3, 1))
sketch14.addConstraint(Sketcher.Constraint("Coincident", 3, 2, 0, 1))
sketch14.addConstraint(Sketcher.Constraint("Coincident", 4, 2, 5, 1))
sketch14.addConstraint(Sketcher.Constraint("Coincident", 5, 2, 6, 1))
sketch14.addConstraint(Sketcher.Constraint("Coincident", 6, 2, 7, 1))
sketch14.addConstraint(Sketcher.Constraint("Coincident", 7, 2, 4, 1))
sketch14.addConstraint(Sketcher.Constraint("Vertical", 0))
sketch14.addConstraint(Sketcher.Constraint("Horizontal", 1))
sketch14.addConstraint(Sketcher.Constraint("Vertical", 2))
sketch14.addConstraint(Sketcher.Constraint("Horizontal", 3))
sketch14.addConstraint(Sketcher.Constraint("Horizontal", 4))
sketch14.addConstraint(Sketcher.Constraint("Vertical", 5))
sketch14.addConstraint(Sketcher.Constraint("Horizontal", 6))
sketch14.addConstraint(Sketcher.Constraint("Vertical", 7))
sketch14.addConstraint(Sketcher.Constraint("Symmetric", 0, 2, 2, 2, -1, 1))
sketch14.addConstraint(Sketcher.Constraint("Symmetric", 4, 2, 6, 2, -1, 1))
sketch14.addConstraint(Sketcher.Constraint("DistanceX", 1, 1, 1, 2, 50.0))
sketch14.addConstraint(Sketcher.Constraint("DistanceX", 4, 2, 4, 1, 40.0))
sketch14.addConstraint(Sketcher.Constraint("DistanceY", 0, 2, 0, 1, 90.0))
sketch14.addConstraint(Sketcher.Constraint("DistanceY", 5, 1, 5, 2, 80.0))
pad6 = body2.newObject("PartDesign::Pad", "Pad005")
pad6.Profile = sketch14
pad6.Length = 14

# Sketch on XZ plane
sketch15 = body2.newObject("Sketcher::SketchObject", "Sketch014")
sketch15.AttachmentSupport = (doc.getObject("XZ_Plane001"), [""])
sketch15.MapMode = "FlatFace"
sketch15.AttachmentOffset = App.Placement(V(0, 0, 19), App.Rotation())
sketch15.addGeometry(Part.LineSegment(V(-7, -40, 0), V(-7, -45, 0)), False)
sketch15.addGeometry(Part.LineSegment(V(-7, -45, 0), V(7, -45, 0)), False)
sketch15.addGeometry(Part.LineSegment(V(7, -45, 0), V(7, -40, 0)), False)
sketch15.addGeometry(Part.LineSegment(V(7, -40, 0), V(-7, -40, 0)), False)
sketch15.addConstraint(Sketcher.Constraint("Coincident", 0, 2, 1, 1))
sketch15.addConstraint(Sketcher.Constraint("Coincident", 1, 2, 2, 1))
sketch15.addConstraint(Sketcher.Constraint("Coincident", 2, 2, 3, 1))
sketch15.addConstraint(Sketcher.Constraint("Coincident", 3, 2, 0, 1))
sketch15.addConstraint(Sketcher.Constraint("Vertical", 0))
sketch15.addConstraint(Sketcher.Constraint("Horizontal", 1))
sketch15.addConstraint(Sketcher.Constraint("Vertical", 2))
sketch15.addConstraint(Sketcher.Constraint("Horizontal", 3))
sketch15.addConstraint(Sketcher.Constraint("DistanceX", 1, 1, 1, 2, 14.0))
sketch15.addConstraint(Sketcher.Constraint("DistanceY", 0, 2, 0, 1, 5.0))
sketch15.addConstraint(Sketcher.Constraint("DistanceX", 0, 2, -1, 1, 7.0))
sketch15.addConstraint(Sketcher.Constraint("DistanceY", 0, 2, -1, 1, 45.0))
pocket9 = body2.newObject("PartDesign::Pocket", "Pocket008")
pocket9.Profile = sketch15
pocket9.Length = 14

# Sketch on XZ plane
sketch16 = body2.newObject("Sketcher::SketchObject", "Sketch015")
sketch16.AttachmentSupport = (doc.getObject("XZ_Plane001"), [""])
sketch16.MapMode = "FlatFace"
sketch16.AttachmentOffset = App.Placement(V(0, 0, 5), App.Rotation())
sketch16.addGeometry(Part.LineSegment(V(-5, 15, 0), V(-5, -2, 0)), False)
sketch16.addGeometry(Part.LineSegment(V(-5, -2, 0), V(5, -2, 0)), False)
sketch16.addGeometry(Part.LineSegment(V(5, -2, 0), V(5, 15, 0)), False)
sketch16.addGeometry(Part.LineSegment(V(5, 15, 0), V(-5, 15, 0)), False)
sketch16.addConstraint(Sketcher.Constraint("Coincident", 0, 2, 1, 1))
sketch16.addConstraint(Sketcher.Constraint("Coincident", 1, 2, 2, 1))
sketch16.addConstraint(Sketcher.Constraint("Coincident", 2, 2, 3, 1))
sketch16.addConstraint(Sketcher.Constraint("Coincident", 3, 2, 0, 1))
sketch16.addConstraint(Sketcher.Constraint("Vertical", 0))
sketch16.addConstraint(Sketcher.Constraint("Horizontal", 1))
sketch16.addConstraint(Sketcher.Constraint("Vertical", 2))
sketch16.addConstraint(Sketcher.Constraint("Horizontal", 3))
sketch16.addConstraint(Sketcher.Constraint("DistanceX", 1, 1, 1, 2, 10.0))
sketch16.addConstraint(Sketcher.Constraint("DistanceY", 0, 2, 0, 1, 17.0))
sketch16.addConstraint(Sketcher.Constraint("DistanceX", 0, 2, -1, 1, 5.0))
sketch16.addConstraint(Sketcher.Constraint("DistanceY", 0, 2, -1, 1, 2.0))
pad7 = body2.newObject("PartDesign::Pad", "Pad006")
pad7.Profile = sketch16
pad7.Length = 4

# Sketch on XZ plane
sketch17 = body2.newObject("Sketcher::SketchObject", "Sketch016")
sketch17.AttachmentSupport = (doc.getObject("XZ_Plane001"), [""])
sketch17.MapMode = "FlatFace"
sketch17.AttachmentOffset = App.Placement(V(0, 0, 9), App.Rotation())
sketch17.addGeometry(Part.Circle(V(0, 10, 0), V(0, 0, 1), 2.3), False)
sketch17.addGeometry(Part.Circle(V(0, 3, 0), V(0, 0, 1), 1.6), False)
sketch17.addConstraint(Sketcher.Constraint("PointOnObject", 0, 3, -2))
sketch17.addConstraint(Sketcher.Constraint("PointOnObject", 1, 3, -2))
sketch17.addConstraint(Sketcher.Constraint("Diameter", 0, 4.6))
sketch17.addConstraint(Sketcher.Constraint("Diameter", 1, 3.2))
sketch17.addConstraint(Sketcher.Constraint("DistanceY", -1, 1, 0, 3, 10.0))
sketch17.addConstraint(Sketcher.Constraint("DistanceY", -1, 1, 1, 3, 3.0))
pocket10 = body2.newObject("PartDesign::Pocket", "Pocket009")
pocket10.Profile = sketch17
pocket10.Length = 7

# Sketch on XZ plane
sketch18 = body2.newObject("Sketcher::SketchObject", "Sketch017")
sketch18.AttachmentSupport = (doc.getObject("XZ_Plane001"), [""])
sketch18.MapMode = "FlatFace"
sketch18.AttachmentOffset = App.Placement(V(0, 0, 2), App.Rotation())
sketch18.addGeometry(Part.Circle(V(0, 3, 0), V(0, 0, 1), 1.6), False)
sketch18.addConstraint(Sketcher.Constraint("PointOnObject", 0, 3, -2))
sketch18.addConstraint(Sketcher.Constraint("Diameter", 0, 3.2))
sketch18.addConstraint(Sketcher.Constraint("DistanceY", -1, 1, 0, 3, 3.0))
pocket11 = body2.newObject("PartDesign::Pocket", "Pocket010")
pocket11.Profile = sketch18
pocket11.Type = "ThroughAll"

# Sketch on XZ plane
sketch19 = body2.newObject("Sketcher::SketchObject", "Sketch018")
sketch19.AttachmentSupport = (doc.getObject("XZ_Plane001"), [""])
sketch19.MapMode = "FlatFace"
sketch19.addGeometry(Part.Circle(V(0, 3, 0), V(0, 0, 1), 3.1), False)
sketch19.addConstraint(Sketcher.Constraint("PointOnObject", 0, 3, -2))
sketch19.addConstraint(Sketcher.Constraint("Diameter", 0, 6.2))
sketch19.addConstraint(Sketcher.Constraint("DistanceY", -1, 1, 0, 3, 3.0))
pocket12 = body2.newObject("PartDesign::Pocket", "Pocket011")
pocket12.Profile = sketch19
pocket12.Length = 3
pocket12.Reversed = True

# Sketch on XZ plane
sketch20 = body2.newObject("Sketcher::SketchObject", "Sketch019")
sketch20.AttachmentSupport = (doc.getObject("XZ_Plane001"), [""])
sketch20.MapMode = "FlatFace"
sketch20.AttachmentOffset = App.Placement(V(0, 0, 5), App.Rotation())
sketch20.addGeometry(Part.LineSegment(V(5, 24, 0), V(5, 2, 0)), False)
sketch20.addGeometry(Part.LineSegment(V(5, 2, 0), V(14, 2, 0)), False)
sketch20.addGeometry(Part.LineSegment(V(14, 2, 0), V(14, 24, 0)), False)
sketch20.addGeometry(Part.LineSegment(V(14, 24, 0), V(5, 24, 0)), False)
sketch20.addConstraint(Sketcher.Constraint("Coincident", 0, 2, 1, 1))
sketch20.addConstraint(Sketcher.Constraint("Coincident", 1, 2, 2, 1))
sketch20.addConstraint(Sketcher.Constraint("Coincident", 2, 2, 3, 1))
sketch20.addConstraint(Sketcher.Constraint("Coincident", 3, 2, 0, 1))
sketch20.addConstraint(Sketcher.Constraint("Vertical", 0))
sketch20.addConstraint(Sketcher.Constraint("Horizontal", 1))
sketch20.addConstraint(Sketcher.Constraint("Vertical", 2))
sketch20.addConstraint(Sketcher.Constraint("Horizontal", 3))
sketch20.addConstraint(Sketcher.Constraint("DistanceX", 1, 1, 1, 2, 9.0))
sketch20.addConstraint(Sketcher.Constraint("DistanceY", 0, 2, 0, 1, 23.0))
sketch20.addConstraint(Sketcher.Constraint("DistanceX", -1, 1, 0, 2, 5.0))
sketch20.addConstraint(Sketcher.Constraint("DistanceY", -1, 1, 0, 2, 1.5))
pad8 = body2.newObject("PartDesign::Pad", "Pad007")
pad8.Profile = sketch20
pad8.Length = 2

# Sketch on XZ plane
sketch21 = body2.newObject("Sketcher::SketchObject", "Sketch020")
sketch21.AttachmentSupport = (doc.getObject("XZ_Plane001"), [""])
sketch21.MapMode = "FlatFace"
sketch21.AttachmentOffset = App.Placement(V(0, 0, 7), App.Rotation())
sketch21.addGeometry(Part.Circle(V(9.5, 20, 0), V(0, 0, 1), 2.5), False)
sketch21.addGeometry(Part.Circle(V(9.5, 13, 0), V(0, 0, 1), 2.5), False)
sketch21.addGeometry(Part.Circle(V(9.5, 6, 0), V(0, 0, 1), 2.5), False)
sketch21.addConstraint(Sketcher.Constraint("Equal", 0, 1))
sketch21.addConstraint(Sketcher.Constraint("Equal", 1, 2))
sketch21.addConstraint(Sketcher.Constraint("Vertical", 0, 3, 1, 3))
sketch21.addConstraint(Sketcher.Constraint("Vertical", 1, 3, 2, 3))
sketch21.addConstraint(Sketcher.Constraint("Diameter", 0, 5.0))
sketch21.addConstraint(Sketcher.Constraint("DistanceY", -1, 1, 0, 3, 20.0))
sketch21.addConstraint(Sketcher.Constraint("DistanceY", -1, 1, 1, 3, 13.0))
sketch21.addConstraint(Sketcher.Constraint("DistanceY", -1, 1, 2, 3, 6.0))
sketch21.addConstraint(Sketcher.Constraint("DistanceX", -1, 1, 0, 3, 9.5))
pocket13 = body2.newObject("PartDesign::Pocket", "Pocket012")
pocket13.Profile = sketch21
pocket13.Type = "ThroughAll"

# Sketch on YZ plane
sketch22 = body2.newObject("Sketcher::SketchObject", "Sketch021")
sketch22.AttachmentSupport = (doc.getObject("YZ_Plane001"), [""])
sketch22.MapMode = "FlatFace"
sketch22.AttachmentOffset = App.Placement(V(0, 0, 25), App.Rotation())
sketch22.addGeometry(Part.Circle(V(-14, 33, 0), V(0, 0, 1), 1.6), False)
sketch22.addConstraint(Sketcher.Constraint("Diameter", 0, 3.2))
sketch22.addConstraint(Sketcher.Constraint("DistanceX", 0, 3, -1, 1, 14.0))
sketch22.addConstraint(Sketcher.Constraint("DistanceY", -1, 1, 0, 3, 33.0))
pocket14 = body2.newObject("PartDesign::Pocket", "Pocket013")
pocket14.Profile = sketch22
pocket14.Type = "ThroughAll"
doc.recompute()

chamfer3 = body2.newObject("PartDesign::Chamfer", "Chamfer002")
chamfer3.Base = (pocket14, edges_at(pocket14, [
    (-20, -19, 0),
    (-25, -19, 0),
    (0, -19, 45),
    (0, -19, 40),
    (20, -19, 0),
    (25, -19, 0),
    (16, -19, -45),
    (13.5, -19, -40),
    (-13.5, -19, -40),
    (-16, -19, -45),
]))
chamfer3.Size = 1.2

doc.recompute()
